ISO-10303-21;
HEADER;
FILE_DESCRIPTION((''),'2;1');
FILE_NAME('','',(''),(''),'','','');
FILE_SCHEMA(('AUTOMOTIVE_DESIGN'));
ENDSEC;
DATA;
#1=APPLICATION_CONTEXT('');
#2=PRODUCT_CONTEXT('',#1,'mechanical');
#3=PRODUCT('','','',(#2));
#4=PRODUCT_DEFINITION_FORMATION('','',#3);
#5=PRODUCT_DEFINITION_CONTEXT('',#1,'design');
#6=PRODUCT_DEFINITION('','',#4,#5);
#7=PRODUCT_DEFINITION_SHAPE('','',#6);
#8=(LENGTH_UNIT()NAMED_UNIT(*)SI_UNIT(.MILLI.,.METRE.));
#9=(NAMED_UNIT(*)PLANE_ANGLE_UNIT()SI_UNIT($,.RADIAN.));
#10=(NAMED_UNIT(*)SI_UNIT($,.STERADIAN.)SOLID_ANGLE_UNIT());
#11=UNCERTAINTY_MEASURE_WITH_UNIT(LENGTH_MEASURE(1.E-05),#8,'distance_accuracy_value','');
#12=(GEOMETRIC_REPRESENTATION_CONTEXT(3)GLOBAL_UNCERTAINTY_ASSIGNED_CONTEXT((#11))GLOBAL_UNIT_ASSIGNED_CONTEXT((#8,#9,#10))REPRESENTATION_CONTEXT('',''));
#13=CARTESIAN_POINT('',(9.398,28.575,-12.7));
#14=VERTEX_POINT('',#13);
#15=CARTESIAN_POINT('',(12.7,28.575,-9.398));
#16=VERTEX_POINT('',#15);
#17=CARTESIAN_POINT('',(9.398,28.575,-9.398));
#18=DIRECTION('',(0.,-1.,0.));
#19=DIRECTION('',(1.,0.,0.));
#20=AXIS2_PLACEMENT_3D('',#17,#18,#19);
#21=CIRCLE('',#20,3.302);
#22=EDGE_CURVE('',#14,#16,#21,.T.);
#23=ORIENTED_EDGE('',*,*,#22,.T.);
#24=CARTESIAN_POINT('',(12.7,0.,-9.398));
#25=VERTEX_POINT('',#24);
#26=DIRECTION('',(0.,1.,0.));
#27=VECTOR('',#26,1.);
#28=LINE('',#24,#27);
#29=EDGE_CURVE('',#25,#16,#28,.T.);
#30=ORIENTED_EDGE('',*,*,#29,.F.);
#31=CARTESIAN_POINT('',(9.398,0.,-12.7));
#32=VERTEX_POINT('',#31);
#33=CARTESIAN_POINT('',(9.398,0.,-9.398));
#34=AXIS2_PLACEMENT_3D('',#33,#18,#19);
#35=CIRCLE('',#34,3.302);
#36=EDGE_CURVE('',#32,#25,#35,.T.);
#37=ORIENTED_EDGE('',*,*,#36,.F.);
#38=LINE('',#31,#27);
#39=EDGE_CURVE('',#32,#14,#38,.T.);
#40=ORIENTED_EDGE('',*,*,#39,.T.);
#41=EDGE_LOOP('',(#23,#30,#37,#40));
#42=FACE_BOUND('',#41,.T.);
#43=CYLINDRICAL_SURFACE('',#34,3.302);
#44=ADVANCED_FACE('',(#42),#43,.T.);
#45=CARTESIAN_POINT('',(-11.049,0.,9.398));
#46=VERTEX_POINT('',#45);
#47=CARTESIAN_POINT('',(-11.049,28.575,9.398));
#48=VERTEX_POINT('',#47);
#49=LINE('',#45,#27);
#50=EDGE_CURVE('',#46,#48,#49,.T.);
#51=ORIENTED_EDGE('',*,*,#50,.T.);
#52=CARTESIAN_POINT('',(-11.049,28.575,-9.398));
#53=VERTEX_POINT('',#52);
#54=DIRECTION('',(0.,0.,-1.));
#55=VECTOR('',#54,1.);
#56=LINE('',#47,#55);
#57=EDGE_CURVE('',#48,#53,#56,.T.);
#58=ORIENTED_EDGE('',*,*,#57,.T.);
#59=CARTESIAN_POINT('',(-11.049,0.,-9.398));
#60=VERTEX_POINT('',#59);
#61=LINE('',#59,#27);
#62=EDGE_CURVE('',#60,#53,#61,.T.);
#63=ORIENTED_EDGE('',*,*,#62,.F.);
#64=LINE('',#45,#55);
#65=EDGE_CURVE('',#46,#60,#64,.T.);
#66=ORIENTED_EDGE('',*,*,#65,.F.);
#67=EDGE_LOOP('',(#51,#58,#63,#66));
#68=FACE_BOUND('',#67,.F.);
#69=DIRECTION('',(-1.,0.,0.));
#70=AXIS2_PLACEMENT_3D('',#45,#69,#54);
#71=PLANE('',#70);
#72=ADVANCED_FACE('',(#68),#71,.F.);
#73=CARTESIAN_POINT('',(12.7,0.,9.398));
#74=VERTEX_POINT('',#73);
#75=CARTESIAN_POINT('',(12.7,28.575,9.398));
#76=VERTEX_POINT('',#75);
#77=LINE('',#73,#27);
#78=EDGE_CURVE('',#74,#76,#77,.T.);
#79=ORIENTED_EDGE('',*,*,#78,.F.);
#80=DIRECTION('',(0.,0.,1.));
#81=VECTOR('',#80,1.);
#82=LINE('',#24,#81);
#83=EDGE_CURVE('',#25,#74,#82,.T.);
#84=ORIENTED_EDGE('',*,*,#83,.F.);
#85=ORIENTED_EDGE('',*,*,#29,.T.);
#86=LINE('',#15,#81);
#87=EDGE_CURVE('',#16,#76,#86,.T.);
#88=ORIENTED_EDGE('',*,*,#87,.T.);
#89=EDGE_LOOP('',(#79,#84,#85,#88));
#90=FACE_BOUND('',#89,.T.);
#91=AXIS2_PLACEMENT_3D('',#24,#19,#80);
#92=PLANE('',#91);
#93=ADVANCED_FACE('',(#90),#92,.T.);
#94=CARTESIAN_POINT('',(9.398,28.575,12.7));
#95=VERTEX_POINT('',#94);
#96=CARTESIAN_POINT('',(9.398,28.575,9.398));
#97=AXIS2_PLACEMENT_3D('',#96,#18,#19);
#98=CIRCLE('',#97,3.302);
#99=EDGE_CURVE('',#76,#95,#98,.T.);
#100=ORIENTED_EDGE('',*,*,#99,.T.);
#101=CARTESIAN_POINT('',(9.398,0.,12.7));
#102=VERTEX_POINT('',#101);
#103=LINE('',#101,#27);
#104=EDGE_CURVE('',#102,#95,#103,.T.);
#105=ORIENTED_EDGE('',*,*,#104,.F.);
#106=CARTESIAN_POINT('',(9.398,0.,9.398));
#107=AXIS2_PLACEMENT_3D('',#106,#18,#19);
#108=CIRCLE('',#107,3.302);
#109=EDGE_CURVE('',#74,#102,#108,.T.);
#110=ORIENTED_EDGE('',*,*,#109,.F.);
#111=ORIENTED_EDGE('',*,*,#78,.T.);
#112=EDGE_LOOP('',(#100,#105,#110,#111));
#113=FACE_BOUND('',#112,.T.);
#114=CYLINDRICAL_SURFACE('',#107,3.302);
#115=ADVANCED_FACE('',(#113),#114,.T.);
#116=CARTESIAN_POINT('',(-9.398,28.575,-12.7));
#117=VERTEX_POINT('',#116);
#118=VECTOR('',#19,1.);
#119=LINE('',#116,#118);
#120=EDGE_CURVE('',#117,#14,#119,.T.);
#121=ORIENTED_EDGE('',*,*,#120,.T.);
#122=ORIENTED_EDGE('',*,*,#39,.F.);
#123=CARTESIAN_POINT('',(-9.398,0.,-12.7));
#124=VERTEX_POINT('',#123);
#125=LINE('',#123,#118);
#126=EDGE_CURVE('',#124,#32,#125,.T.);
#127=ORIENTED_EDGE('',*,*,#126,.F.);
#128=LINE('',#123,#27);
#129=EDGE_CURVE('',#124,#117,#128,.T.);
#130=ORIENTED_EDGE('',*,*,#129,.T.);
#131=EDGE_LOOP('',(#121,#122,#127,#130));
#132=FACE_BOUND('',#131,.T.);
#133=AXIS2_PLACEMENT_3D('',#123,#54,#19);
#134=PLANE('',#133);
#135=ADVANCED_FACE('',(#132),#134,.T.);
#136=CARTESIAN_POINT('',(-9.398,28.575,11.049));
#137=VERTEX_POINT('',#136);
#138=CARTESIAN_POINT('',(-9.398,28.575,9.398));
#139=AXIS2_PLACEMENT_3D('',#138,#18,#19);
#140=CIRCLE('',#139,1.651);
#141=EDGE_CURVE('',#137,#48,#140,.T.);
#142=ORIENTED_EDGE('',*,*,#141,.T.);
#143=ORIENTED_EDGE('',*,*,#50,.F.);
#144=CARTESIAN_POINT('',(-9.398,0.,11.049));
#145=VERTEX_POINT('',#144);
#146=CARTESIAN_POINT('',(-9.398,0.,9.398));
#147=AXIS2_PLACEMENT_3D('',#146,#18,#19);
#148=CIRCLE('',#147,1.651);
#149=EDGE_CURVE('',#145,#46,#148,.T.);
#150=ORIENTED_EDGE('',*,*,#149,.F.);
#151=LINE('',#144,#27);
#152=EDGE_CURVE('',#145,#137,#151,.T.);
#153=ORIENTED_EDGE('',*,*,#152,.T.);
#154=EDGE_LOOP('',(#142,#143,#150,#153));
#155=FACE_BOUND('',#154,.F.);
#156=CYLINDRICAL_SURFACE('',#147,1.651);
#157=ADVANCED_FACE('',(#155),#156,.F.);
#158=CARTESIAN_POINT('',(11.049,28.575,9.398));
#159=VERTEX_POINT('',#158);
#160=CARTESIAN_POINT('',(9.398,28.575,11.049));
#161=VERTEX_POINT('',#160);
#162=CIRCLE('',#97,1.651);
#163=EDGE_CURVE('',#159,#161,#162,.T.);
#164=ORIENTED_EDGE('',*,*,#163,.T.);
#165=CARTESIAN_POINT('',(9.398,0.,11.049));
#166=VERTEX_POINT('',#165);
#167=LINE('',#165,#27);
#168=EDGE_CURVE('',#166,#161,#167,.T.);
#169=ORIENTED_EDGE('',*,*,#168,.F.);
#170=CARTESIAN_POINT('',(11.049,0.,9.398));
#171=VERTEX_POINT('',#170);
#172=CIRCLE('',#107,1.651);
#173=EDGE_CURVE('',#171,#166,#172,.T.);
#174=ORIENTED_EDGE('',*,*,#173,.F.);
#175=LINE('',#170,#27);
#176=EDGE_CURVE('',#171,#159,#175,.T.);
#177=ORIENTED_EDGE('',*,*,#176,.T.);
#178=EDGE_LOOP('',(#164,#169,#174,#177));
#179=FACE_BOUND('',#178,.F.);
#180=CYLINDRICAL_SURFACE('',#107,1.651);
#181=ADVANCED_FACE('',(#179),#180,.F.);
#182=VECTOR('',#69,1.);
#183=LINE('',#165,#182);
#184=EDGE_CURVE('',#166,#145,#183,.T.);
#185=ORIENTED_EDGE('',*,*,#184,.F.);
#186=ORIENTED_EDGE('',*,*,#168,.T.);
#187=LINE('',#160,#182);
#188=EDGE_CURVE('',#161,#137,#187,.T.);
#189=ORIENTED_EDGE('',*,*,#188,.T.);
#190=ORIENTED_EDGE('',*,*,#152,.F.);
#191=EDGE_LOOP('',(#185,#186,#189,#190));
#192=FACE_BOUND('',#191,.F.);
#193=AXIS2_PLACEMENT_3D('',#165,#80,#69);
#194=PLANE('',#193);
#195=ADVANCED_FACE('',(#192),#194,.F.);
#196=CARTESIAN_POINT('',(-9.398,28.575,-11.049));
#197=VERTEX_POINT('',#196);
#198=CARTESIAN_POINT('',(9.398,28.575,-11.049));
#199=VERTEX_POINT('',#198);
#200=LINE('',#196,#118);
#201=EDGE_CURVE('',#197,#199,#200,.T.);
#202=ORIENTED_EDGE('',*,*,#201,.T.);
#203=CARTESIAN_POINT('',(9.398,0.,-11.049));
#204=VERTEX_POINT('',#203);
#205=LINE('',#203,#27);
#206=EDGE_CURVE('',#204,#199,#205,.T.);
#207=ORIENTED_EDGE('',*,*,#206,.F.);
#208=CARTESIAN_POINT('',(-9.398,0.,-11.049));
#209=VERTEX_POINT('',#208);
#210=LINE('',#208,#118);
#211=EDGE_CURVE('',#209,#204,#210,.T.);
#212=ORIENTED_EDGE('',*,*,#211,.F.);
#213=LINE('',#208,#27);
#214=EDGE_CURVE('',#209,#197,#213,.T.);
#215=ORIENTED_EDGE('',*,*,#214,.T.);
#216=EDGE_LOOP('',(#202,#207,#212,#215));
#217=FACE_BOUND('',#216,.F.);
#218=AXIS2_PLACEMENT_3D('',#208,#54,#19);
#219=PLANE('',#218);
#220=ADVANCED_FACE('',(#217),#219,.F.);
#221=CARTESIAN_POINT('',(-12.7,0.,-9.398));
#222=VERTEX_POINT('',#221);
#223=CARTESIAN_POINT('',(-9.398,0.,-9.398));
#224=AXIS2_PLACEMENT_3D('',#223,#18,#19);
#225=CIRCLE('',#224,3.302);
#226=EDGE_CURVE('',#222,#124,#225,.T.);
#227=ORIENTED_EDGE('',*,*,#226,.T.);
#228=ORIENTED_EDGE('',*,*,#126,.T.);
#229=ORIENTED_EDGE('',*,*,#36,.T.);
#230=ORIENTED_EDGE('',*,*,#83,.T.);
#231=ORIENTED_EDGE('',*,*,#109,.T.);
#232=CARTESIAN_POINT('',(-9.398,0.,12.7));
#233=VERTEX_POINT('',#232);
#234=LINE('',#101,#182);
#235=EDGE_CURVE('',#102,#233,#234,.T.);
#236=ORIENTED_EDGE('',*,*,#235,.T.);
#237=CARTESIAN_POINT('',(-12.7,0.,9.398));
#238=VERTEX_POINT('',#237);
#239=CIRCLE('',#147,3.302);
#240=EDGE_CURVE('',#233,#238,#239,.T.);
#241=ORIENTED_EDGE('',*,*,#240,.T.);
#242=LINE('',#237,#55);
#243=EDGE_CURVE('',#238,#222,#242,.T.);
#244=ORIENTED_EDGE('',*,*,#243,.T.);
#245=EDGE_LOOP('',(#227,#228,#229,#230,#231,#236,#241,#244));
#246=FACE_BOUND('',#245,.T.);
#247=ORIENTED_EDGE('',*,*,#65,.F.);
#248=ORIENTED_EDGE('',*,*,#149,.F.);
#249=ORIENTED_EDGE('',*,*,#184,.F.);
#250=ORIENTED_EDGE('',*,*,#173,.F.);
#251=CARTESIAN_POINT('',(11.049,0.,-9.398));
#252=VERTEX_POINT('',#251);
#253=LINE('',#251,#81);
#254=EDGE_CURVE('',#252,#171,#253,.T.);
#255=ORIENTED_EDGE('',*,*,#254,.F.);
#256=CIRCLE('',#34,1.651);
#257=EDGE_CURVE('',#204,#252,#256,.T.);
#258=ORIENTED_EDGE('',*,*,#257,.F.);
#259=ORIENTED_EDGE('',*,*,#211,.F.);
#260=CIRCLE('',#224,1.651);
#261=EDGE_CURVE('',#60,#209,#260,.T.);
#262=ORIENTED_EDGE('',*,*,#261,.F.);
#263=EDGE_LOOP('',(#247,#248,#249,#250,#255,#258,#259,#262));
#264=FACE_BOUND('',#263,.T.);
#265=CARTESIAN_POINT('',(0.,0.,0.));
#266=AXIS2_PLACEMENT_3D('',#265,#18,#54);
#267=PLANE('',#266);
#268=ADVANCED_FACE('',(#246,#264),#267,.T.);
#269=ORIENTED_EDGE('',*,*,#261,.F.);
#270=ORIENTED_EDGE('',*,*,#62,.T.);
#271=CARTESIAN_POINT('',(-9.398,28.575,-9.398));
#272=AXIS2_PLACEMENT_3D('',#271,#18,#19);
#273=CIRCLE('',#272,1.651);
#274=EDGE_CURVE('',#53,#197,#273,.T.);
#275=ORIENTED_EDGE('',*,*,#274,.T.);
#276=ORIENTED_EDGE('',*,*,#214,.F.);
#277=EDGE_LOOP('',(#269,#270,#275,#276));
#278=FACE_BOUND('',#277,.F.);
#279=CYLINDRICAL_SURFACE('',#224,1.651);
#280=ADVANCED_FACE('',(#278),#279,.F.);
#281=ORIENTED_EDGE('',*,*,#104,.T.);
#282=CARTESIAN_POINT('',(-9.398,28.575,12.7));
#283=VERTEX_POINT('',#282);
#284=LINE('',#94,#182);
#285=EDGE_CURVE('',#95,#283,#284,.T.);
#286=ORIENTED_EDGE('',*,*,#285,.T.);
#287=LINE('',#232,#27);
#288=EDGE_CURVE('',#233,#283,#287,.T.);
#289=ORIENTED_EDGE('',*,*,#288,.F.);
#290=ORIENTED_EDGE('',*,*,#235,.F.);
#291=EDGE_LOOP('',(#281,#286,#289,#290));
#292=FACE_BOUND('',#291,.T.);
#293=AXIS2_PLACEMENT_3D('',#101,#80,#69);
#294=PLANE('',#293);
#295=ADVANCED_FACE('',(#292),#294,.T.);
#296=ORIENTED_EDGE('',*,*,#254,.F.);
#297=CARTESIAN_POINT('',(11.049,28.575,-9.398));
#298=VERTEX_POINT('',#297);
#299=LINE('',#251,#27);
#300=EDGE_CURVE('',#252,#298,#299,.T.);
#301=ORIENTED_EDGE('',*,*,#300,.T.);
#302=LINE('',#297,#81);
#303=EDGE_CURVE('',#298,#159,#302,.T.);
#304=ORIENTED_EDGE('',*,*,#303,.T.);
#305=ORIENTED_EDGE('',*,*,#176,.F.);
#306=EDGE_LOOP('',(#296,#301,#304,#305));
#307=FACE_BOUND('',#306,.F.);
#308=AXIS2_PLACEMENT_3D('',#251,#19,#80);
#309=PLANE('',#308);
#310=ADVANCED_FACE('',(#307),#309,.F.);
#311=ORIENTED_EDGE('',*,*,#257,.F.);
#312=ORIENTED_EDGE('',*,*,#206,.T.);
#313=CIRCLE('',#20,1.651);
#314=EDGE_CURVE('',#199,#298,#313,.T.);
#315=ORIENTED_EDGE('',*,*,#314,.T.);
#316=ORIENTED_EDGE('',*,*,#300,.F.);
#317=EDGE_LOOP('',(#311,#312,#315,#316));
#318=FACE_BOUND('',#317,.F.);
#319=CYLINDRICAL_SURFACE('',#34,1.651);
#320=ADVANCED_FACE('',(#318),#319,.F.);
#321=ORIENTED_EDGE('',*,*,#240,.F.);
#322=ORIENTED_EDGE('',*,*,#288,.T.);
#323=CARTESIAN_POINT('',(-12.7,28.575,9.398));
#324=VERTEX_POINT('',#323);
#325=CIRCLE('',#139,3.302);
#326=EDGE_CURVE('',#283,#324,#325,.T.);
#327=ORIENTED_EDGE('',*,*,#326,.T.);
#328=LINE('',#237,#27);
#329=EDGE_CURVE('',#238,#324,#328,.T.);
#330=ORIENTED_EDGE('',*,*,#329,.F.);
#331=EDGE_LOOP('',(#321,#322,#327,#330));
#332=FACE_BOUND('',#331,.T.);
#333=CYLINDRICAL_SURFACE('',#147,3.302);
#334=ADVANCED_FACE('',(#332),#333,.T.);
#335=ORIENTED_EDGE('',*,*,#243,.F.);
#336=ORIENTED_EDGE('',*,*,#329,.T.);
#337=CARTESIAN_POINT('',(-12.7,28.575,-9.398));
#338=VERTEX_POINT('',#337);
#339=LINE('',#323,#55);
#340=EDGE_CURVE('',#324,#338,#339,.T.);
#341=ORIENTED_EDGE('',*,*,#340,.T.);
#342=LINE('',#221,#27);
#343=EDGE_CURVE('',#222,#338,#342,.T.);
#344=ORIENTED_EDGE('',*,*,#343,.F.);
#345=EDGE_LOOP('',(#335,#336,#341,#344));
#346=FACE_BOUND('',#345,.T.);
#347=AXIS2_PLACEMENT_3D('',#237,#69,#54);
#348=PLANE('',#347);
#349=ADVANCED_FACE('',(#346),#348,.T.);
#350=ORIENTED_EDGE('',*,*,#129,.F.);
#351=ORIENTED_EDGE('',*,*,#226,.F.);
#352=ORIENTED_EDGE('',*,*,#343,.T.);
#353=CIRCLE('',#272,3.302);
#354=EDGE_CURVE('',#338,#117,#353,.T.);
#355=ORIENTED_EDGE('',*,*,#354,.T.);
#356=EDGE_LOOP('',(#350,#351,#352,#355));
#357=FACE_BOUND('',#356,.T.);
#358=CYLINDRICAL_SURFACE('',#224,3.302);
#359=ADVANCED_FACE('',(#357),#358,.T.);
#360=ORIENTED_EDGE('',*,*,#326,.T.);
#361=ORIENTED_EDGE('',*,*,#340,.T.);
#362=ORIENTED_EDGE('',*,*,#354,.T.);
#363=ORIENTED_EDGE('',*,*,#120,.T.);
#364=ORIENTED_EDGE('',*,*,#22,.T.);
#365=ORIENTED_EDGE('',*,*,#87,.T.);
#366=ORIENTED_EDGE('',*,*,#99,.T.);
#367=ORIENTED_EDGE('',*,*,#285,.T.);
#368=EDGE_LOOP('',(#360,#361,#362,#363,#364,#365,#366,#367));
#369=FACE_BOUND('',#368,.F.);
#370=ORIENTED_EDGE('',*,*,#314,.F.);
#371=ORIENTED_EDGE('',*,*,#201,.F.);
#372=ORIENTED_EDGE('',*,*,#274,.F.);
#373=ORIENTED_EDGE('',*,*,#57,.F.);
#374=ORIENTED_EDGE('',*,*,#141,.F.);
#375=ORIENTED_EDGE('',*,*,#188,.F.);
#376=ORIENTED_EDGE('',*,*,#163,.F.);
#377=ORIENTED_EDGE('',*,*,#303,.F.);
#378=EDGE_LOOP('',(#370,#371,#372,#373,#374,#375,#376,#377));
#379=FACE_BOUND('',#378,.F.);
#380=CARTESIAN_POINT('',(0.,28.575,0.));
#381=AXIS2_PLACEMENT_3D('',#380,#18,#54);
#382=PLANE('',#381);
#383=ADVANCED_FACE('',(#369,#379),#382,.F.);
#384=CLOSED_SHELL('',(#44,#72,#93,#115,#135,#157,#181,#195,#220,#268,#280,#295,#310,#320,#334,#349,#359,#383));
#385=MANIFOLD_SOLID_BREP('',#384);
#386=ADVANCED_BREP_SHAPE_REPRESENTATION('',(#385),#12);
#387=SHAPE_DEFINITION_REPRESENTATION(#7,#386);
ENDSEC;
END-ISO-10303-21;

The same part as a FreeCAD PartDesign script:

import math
import FreeCAD as App
import Part
import Sketcher
Q = App.Units.Quantity

doc = App.newDocument("Part")
body = doc.addObject("PartDesign::Body", "Body")

# Sketch on XZ plane
sketch1 = body.newObject("Sketcher::SketchObject", "Sketch")
sketch1.AttachmentSupport = (doc.getObject("XZ_Plane"), [""])
sketch1.MapMode = "FlatFace"
sketch1.addGeometry(Part.LineSegment(App.Vector(-12.7, 9.398, 0), App.Vector(-12.7, -9.398, 0)), False)
sketch1.addGeometry(Part.ArcOfCircle(Part.Circle(App.Vector(-9.398, -9.398, 0), App.Vector(0, 0, 1), 3.302), math.radians(180), math.radians(270)), False)
sketch1.addGeometry(Part.LineSegment(App.Vector(-9.398, -12.7, 0), App.Vector(9.398, -12.7, 0)), False)
sketch1.addGeometry(Part.ArcOfCircle(Part.Circle(App.Vector(9.398, -9.398, 0), App.Vector(0, 0, 1), 3.302), math.radians(-90), math.radians(0)), False)
sketch1.addGeometry(Part.LineSegment(App.Vector(12.7, -9.398, 0), App.Vector(12.7, 9.398, 0)), False)
sketch1.addGeometry(Part.ArcOfCircle(Part.Circle(App.Vector(9.398, 9.398, 0), App.Vector(0, 0, 1), 3.302), math.radians(0), math.radians(90)), False)
sketch1.addGeometry(Part.LineSegment(App.Vector(9.398, 12.7, 0), App.Vector(-9.398, 12.7, 0)), False)
sketch1.addGeometry(Part.ArcOfCircle(Part.Circle(App.Vector(-9.398, 9.398, 0), App.Vector(0, 0, 1), 3.302), math.radians(90), math.radians(180)), False)
sketch1.addGeometry(Part.LineSegment(App.Vector(-11.049, -9.398, 0), App.Vector(-11.049, 9.398, 0)), False)
sketch1.addGeometry(Part.ArcOfCircle(Part.Circle(App.Vector(-9.398, 9.398, 0), App.Vector(0, 0, 1), 1.651), math.radians(90), math.radians(180)), False)
sketch1.addGeometry(Part.LineSegment(App.Vector(-9.398, 11.049, 0), App.Vector(9.398, 11.049, 0)), False)
sketch1.addGeometry(Part.ArcOfCircle(Part.Circle(App.Vector(9.398, 9.398, 0), App.Vector(0, 0, 1), 1.651), math.radians(0), math.radians(90)), False)
sketch1.addGeometry(Part.LineSegment(App.Vector(11.049, 9.398, 0), App.Vector(11.049, -9.398, 0)), False)
sketch1.addGeometry(Part.ArcOfCircle(Part.Circle(App.Vector(9.398, -9.398, 0), App.Vector(0, 0, 1), 1.651), math.radians(-90), math.radians(0)), False)
sketch1.addGeometry(Part.LineSegment(App.Vector(9.398, -11.049, 0), App.Vector(-9.398, -11.049, 0)), False)
sketch1.addGeometry(Part.ArcOfCircle(Part.Circle(App.Vector(-9.398, -9.398, 0), App.Vector(0, 0, 1), 1.651), math.radians(180), math.radians(270)), False)
sketch1.addConstraint(Sketcher.Constraint("Tangent", 0, 2, 1, 1))
sketch1.addConstraint(Sketcher.Constraint("Tangent", 1, 2, 2, 1))
sketch1.addConstraint(Sketcher.Constraint("Tangent", 2, 2, 3, 1))
sketch1.addConstraint(Sketcher.Constraint("Tangent", 3, 2, 4, 1))
sketch1.addConstraint(Sketcher.Constraint("Tangent", 4, 2, 5, 1))
sketch1.addConstraint(Sketcher.Constraint("Tangent", 5, 2, 6, 1))
sketch1.addConstraint(Sketcher.Constraint("Tangent", 6, 2, 7, 1))
sketch1.addConstraint(Sketcher.Constraint("Tangent", 7, 2, 0, 1))
sketch1.addConstraint(Sketcher.Constraint("Tangent", 8, 2, 9, 2))
sketch1.addConstraint(Sketcher.Constraint("Tangent", 9, 1, 10, 1))
sketch1.addConstraint(Sketcher.Constraint("Tangent", 10, 2, 11, 2))
sketch1.addConstraint(Sketcher.Constraint("Tangent", 11, 1, 12, 1))
sketch1.addConstraint(Sketcher.Constraint("Tangent", 12, 2, 13, 2))
sketch1.addConstraint(Sketcher.Constraint("Tangent", 13, 1, 14, 1))
sketch1.addConstraint(Sketcher.Constraint("Tangent", 14, 2, 15, 2))
sketch1.addConstraint(Sketcher.Constraint("Tangent", 15, 1, 8, 1))
sketch1.addConstraint(Sketcher.Constraint("Vertical", 0))
sketch1.addConstraint(Sketcher.Constraint("Horizontal", 2))
sketch1.addConstraint(Sketcher.Constraint("Vertical", 4))
sketch1.addConstraint(Sketcher.Constraint("Horizontal", 6))
sketch1.addConstraint(Sketcher.Constraint("Vertical", 8))
sketch1.addConstraint(Sketcher.Constraint("Horizontal", 10))
sketch1.addConstraint(Sketcher.Constraint("Vertical", 12))
sketch1.addConstraint(Sketcher.Constraint("Horizontal", 14))
sketch1.addConstraint(Sketcher.Constraint("Coincident", 9, 3, 7, 3))
sketch1.addConstraint(Sketcher.Constraint("Coincident", 11, 3, 5, 3))
sketch1.addConstraint(Sketcher.Constraint("Coincident", 13, 3, 3, 3))
sketch1.addConstraint(Sketcher.Constraint("Equal", 1, 3))
sketch1.addConstraint(Sketcher.Constraint("Equal", 3, 5))
sketch1.addConstraint(Sketcher.Constraint("Equal", 5, 7))
sketch1.addConstraint(Sketcher.Constraint("Equal", 13, 15))
sketch1.addConstraint(Sketcher.Constraint("Symmetric", 1, 3, 5, 3, -1, 1))
sketch1.addConstraint(Sketcher.Constraint("Equal", 14, 0))
sketch1.addConstraint(Sketcher.Constraint("Radius", 1, Q("0.13 in")))
sketch1.addConstraint(Sketcher.Constraint("Radius", 9, Q("0.065 in")))
sketch1.addConstraint(Sketcher.Constraint("DistanceX", 2, 1, 2, 2, Q("0.74 in")))
pad1 = body.newObject("PartDesign::Pad", "Pad")
pad1.Profile = sketch1
pad1.Length = Q("1.125 in")
pad1.Reversed = True

doc.recompute()
